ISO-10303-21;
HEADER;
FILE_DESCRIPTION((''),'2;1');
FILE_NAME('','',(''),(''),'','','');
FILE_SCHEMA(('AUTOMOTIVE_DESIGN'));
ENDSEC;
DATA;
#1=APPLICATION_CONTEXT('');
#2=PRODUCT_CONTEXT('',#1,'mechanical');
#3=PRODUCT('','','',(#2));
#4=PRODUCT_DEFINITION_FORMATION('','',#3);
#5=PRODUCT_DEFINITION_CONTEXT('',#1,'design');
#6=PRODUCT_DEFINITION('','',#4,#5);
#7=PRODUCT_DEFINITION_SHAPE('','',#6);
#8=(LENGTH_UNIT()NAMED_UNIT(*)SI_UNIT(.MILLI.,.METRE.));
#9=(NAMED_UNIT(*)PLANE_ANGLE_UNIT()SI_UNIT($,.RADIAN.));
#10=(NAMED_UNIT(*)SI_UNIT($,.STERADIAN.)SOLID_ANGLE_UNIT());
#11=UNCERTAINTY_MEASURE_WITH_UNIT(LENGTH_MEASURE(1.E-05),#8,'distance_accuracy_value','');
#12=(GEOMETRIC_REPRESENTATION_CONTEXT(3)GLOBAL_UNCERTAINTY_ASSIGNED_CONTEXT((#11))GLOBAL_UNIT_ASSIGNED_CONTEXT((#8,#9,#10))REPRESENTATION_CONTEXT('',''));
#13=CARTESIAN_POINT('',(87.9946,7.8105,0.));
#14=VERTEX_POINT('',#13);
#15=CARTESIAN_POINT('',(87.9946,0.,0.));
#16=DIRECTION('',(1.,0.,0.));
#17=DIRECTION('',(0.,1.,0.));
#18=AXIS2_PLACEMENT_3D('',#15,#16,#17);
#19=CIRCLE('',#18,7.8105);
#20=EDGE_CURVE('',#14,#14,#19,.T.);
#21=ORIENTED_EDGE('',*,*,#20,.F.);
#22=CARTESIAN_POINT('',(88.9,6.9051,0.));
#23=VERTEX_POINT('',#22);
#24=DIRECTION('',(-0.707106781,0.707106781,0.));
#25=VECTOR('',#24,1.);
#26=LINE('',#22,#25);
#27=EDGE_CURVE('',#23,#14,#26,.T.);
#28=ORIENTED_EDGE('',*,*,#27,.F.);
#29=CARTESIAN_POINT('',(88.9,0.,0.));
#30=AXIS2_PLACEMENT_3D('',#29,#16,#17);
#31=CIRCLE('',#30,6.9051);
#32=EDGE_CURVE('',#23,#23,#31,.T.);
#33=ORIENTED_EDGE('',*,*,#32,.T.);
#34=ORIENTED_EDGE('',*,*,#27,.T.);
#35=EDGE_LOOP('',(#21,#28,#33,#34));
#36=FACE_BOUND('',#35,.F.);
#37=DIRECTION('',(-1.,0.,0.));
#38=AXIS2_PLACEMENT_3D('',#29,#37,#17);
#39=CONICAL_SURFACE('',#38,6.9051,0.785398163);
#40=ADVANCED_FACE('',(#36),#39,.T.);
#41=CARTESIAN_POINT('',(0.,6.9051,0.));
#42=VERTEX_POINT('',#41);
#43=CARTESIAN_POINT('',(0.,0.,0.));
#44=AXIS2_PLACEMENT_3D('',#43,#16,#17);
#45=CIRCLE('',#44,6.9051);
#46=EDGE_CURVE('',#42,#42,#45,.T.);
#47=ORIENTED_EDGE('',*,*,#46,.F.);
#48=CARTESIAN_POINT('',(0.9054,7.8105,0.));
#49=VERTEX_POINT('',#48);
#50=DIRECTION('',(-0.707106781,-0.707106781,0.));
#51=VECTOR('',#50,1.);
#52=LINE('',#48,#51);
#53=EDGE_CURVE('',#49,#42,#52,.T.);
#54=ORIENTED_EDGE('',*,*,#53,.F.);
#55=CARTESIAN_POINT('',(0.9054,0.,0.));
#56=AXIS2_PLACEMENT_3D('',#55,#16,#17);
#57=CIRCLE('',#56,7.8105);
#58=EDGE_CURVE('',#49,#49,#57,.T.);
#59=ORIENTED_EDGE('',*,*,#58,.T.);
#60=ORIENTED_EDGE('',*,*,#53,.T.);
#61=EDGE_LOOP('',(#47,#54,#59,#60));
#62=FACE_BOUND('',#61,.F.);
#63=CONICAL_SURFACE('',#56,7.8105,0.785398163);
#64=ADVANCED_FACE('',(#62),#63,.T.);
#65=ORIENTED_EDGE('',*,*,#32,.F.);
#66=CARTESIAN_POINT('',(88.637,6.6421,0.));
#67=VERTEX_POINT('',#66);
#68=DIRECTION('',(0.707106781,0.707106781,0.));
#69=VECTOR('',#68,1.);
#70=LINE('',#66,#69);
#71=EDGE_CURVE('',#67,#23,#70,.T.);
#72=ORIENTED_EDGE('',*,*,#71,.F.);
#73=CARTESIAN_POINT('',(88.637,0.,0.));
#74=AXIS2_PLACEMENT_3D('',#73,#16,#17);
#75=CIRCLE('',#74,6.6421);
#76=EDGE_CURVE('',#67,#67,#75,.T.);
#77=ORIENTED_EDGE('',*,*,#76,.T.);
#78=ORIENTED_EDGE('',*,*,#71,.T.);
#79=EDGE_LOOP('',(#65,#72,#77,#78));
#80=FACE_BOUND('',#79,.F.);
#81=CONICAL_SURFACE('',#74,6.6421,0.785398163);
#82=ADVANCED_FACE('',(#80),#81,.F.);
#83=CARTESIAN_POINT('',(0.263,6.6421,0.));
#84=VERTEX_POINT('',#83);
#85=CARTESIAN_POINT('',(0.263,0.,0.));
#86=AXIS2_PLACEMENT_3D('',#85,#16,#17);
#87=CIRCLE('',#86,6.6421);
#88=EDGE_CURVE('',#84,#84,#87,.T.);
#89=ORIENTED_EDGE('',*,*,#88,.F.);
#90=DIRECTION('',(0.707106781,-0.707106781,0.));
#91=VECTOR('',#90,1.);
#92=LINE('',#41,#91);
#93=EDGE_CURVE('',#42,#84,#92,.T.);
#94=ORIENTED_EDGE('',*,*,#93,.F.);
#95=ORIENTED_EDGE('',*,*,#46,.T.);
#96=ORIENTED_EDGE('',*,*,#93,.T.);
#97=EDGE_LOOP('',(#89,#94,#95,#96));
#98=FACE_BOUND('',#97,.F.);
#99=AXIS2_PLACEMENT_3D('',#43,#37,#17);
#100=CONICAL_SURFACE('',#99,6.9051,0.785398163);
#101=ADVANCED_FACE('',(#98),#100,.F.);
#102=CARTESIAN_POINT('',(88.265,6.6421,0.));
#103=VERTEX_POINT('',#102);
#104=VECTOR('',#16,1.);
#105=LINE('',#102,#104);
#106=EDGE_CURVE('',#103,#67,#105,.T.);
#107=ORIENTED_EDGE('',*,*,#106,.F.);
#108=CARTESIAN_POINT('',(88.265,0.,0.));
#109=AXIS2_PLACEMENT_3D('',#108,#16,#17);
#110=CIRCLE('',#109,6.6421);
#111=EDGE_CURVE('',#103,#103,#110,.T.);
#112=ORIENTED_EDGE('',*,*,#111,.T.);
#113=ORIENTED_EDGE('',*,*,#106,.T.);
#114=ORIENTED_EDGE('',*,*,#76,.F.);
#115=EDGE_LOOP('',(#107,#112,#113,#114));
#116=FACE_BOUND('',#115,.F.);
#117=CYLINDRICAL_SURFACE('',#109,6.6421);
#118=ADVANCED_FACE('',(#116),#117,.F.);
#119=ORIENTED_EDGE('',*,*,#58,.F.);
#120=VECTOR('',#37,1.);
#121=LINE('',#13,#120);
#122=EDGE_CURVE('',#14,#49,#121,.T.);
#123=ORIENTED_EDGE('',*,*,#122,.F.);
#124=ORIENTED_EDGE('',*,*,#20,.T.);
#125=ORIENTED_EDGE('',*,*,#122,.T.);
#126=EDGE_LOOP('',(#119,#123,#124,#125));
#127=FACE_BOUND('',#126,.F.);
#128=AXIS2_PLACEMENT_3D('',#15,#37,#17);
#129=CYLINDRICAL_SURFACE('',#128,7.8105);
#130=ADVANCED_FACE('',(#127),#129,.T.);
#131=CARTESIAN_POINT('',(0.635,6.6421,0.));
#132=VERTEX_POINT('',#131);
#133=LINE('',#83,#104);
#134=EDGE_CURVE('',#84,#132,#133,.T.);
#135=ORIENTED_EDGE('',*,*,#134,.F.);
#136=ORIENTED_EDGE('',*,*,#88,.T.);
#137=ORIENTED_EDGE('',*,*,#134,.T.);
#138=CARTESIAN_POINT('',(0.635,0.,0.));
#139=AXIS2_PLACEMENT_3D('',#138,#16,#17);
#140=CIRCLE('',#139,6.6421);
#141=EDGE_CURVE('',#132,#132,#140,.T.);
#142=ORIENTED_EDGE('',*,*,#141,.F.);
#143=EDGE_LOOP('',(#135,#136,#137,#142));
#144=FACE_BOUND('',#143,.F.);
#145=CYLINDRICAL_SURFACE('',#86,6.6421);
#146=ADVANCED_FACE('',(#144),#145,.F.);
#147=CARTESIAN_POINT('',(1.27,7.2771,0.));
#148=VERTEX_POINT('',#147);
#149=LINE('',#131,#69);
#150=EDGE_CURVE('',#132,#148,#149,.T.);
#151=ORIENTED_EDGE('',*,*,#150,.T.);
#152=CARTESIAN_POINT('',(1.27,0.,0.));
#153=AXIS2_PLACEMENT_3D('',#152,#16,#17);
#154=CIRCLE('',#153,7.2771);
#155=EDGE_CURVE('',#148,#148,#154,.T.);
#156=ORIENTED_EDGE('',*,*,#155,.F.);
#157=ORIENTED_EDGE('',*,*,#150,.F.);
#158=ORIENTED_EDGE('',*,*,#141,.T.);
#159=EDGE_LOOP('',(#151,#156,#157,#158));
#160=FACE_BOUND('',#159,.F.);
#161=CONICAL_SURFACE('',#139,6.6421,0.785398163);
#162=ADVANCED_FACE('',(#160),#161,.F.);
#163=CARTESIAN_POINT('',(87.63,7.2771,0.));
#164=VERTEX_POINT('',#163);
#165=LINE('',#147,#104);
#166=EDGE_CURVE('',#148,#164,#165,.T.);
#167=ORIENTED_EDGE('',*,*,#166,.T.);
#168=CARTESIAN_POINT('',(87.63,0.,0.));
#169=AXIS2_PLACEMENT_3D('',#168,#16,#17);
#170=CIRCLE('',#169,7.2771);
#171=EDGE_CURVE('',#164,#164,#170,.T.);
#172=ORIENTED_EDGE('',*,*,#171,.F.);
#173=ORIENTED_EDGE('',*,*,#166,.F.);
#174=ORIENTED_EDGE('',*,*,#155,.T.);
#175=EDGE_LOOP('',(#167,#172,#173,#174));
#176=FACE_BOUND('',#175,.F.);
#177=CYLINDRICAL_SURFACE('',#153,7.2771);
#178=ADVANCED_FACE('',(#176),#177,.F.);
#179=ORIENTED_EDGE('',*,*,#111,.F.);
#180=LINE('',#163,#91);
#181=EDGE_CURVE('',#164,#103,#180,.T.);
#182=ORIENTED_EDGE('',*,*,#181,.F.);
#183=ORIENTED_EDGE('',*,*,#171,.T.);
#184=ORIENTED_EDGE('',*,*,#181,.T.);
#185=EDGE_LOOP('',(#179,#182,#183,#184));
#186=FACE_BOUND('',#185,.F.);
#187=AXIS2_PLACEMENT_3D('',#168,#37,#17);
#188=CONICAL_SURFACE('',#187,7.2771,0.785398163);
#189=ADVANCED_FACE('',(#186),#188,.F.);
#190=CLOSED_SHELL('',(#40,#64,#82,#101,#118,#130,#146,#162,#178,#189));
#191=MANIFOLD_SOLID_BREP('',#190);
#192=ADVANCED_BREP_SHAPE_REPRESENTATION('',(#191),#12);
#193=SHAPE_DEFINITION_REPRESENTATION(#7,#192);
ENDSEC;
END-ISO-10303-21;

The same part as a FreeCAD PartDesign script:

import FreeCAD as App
import Part
import Sketcher
from FreeCAD import Vector
Q = App.Units.Quantity


def add_polygon(sketch, points):
    """Adds a closed chain of lines whose ends are joined by coincident constraints."""
    first, n = sketch.GeometryCount, len(points)
    for a, b in zip(points, points[1:] + points[:1]):
        sketch.addGeometry(Part.LineSegment(App.Vector(*a, 0), App.Vector(*b, 0)), False)
    for i in range(n):
        sketch.addConstraint(Sketcher.Constraint("Coincident", first + i, 2, first + (i + 1) % n, 1))

doc = App.newDocument("Part")
body = doc.addObject("PartDesign::Body", "Body")

sketch1 = doc.addObject("Sketcher::SketchObject", "Sketch")
body.addObject(sketch1)
sketch1.AttachmentSupport = (doc.XY_Plane, [""])
sketch1.MapMode = "FlatFace"
add_polygon(sketch1, [(0.91, 7.81), (0, 6.91), (0.26, 6.64), (0.64, 6.64), (1.27, 7.28), (87.63, 7.28), (88.27, 6.64), (88.64, 6.64), (88.9, 6.91), (87.99, 7.81)])
sketch1.addConstraint(Sketcher.Constraint("Horizontal", 2))
sketch1.addConstraint(Sketcher.Constraint("Horizontal", 4))
sketch1.addConstraint(Sketcher.Constraint("Horizontal", 6))
sketch1.addConstraint(Sketcher.Constraint("Horizontal", 9))
sketch1.addConstraint(Sketcher.Constraint("PointOnObject", 0, 2, -2))
sketch1.addConstraint(Sketcher.Constraint("Perpendicular", 0, 1))
sketch1.addConstraint(Sketcher.Constraint("Perpendicular", 1, 3))
sketch1.addConstraint(Sketcher.Constraint("Perpendicular", 3, 5))
sketch1.addConstraint(Sketcher.Constraint("Perpendicular", 5, 7))
sketch1.addConstraint(Sketcher.Constraint("Perpendicular", 7, 8))
sketch1.addConstraint(Sketcher.Constraint("Horizontal", 2, 2, 5, 2))
sketch1.addConstraint(Sketcher.Constraint("Horizontal", 0, 2, 7, 2))
sketch1.addConstraint(Sketcher.Constraint("Equal", 2, 6))
sketch1.addConstraint(Sketcher.Constraint("Equal", 3, 5))
sketch1.addConstraint(Sketcher.Constraint("DistanceX", 4, 1, 4, 2, Q("3.4 in")))
sketch1.addConstraint(Sketcher.Constraint("DistanceX", -1, 1, 7, 2, Q("3.5 in")))
sketch1.addConstraint(Sketcher.Constraint("DistanceX", 2, 2, 5, 2, Q("3.45 in")))
sketch1.addConstraint(Sketcher.Constraint("DistanceX", 9, 2, 9, 1, Q("3.4287 in")))
sketch1.addConstraint(Sketcher.Constraint("DistanceY", 4, 2, 8, 2, Q("0.021 in")))
sketch1.addConstraint(Sketcher.Constraint("DistanceY", -1, 1, 1, 2, Q("0.2615 in")))
revolution = doc.addObject("PartDesign::Revolution", "Revolution")
body.addObject(revolution)
revolution.Profile = sketch1
revolution.ReferenceAxis = (sketch1, ["H_Axis"])
revolution.Angle = 360

doc.recompute()
